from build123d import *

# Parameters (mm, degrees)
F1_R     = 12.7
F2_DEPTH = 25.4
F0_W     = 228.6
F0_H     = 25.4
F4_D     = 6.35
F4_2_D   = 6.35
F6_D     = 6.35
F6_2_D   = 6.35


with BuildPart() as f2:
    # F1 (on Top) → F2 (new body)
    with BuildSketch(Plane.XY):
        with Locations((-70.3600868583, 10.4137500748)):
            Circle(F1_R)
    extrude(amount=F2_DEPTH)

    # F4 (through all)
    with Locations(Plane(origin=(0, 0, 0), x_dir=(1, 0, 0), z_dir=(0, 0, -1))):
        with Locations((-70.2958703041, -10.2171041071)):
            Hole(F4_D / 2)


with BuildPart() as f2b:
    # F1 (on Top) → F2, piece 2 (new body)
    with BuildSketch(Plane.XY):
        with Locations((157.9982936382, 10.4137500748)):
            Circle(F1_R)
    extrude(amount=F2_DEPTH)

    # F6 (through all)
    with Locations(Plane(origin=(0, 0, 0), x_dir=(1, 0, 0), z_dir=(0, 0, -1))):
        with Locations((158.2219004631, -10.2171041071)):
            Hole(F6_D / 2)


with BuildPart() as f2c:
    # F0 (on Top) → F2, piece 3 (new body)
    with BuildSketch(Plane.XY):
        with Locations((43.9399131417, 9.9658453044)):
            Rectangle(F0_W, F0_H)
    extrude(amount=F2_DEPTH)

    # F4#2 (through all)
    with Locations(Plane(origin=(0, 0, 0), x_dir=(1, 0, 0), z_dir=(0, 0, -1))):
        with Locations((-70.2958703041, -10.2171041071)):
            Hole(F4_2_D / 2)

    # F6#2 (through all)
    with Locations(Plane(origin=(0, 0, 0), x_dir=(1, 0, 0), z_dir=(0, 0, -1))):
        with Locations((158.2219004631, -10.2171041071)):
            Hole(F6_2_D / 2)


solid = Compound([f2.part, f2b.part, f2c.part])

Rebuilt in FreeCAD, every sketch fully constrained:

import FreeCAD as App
import Part
import Sketcher

V = App.Vector
Q = App.Units.Quantity

doc = App.newDocument("Part")
params = doc.addObject("Spreadsheet::Sheet", "Params")
for row, (alias, value) in enumerate([
    ("sketch1_diameter", "1 in"),
    ("pad1_length", "1 in"),
    ("sketch2_diameter", "0.25 in"),
    ("hole_diameter", "0.25 in"),
    ("sketch3_diameter", "1 in"),
    ("pad2_length", "1 in"),
    ("sketch4_diameter", "0.25 in"),
    ("hole2_diameter", "0.25 in"),
    ("sketch5_width", "9 in"),
    ("sketch5_height", "1 in"),
    ("pad3_length", "1 in"),
    ("sketch6_diameter", "0.25 in"),
    ("hole3_diameter", "0.25 in"),
    ("sketch7_diameter", "0.25 in"),
    ("hole4_diameter", "0.25 in"),
], start=1):
    params.set(f"A{row}", alias)
    params.set(f"B{row}", "=" + value)
    params.setAlias(f"B{row}", alias)

body = doc.addObject("PartDesign::Body", "Body")

sketch1 = doc.addObject("Sketcher::SketchObject", "Sketch")
body.addObject(sketch1)
sketch1.AttachmentSupport = (doc.XY_Plane, [""])
sketch1.MapMode = "FlatFace"
sketch1.addGeometry(Part.Circle(V(-70.360087, 10.41375, 0), V(0, 0, 1), 12.7), False)
sketch1.addConstraint([
    Sketcher.Constraint("Diameter", 0, Q("1 in")),
    Sketcher.Constraint("DistanceY", -1, 1, 0, 3, 10.41375),
    Sketcher.Constraint("DistanceX", 0, 3, -1, 1, 70.360087),
])
sketch1.setExpression("Constraints[0]", "Params.sketch1_diameter")
pad1 = doc.addObject("PartDesign::Pad", "Pad")
body.addObject(pad1)
pad1.Profile = sketch1
pad1.setExpression("Length", "Params.pad1_length")

sketch2 = doc.addObject("Sketcher::SketchObject", "Sketch001")
body.addObject(sketch2)
sketch2.AttachmentSupport = (doc.XY_Plane, [""])
sketch2.MapMode = "FlatFace"
sketch2.addGeometry(Part.Circle(V(-70.29587, 10.217104, 0), V(0, 0, 1), 3.175), False)
sketch2.addConstraint([
    Sketcher.Constraint("Diameter", 0, Q("0.25 in")),
    Sketcher.Constraint("DistanceX", 0, 3, -1, 1, 70.29587),
    Sketcher.Constraint("DistanceY", -1, 1, 0, 3, 10.217104),
])
sketch2.setExpression("Constraints[0]", "Params.sketch2_diameter")
doc.recompute()
hole = doc.addObject("PartDesign::Hole", "Hole")
body.addObject(hole)
hole.Profile = sketch2
hole.ThreadType = "None"
hole.setExpression("Diameter", "Params.hole_diameter")
hole.DepthType = "ThroughAll"
hole.Reversed = True
body2 = doc.addObject("PartDesign::Body", "Body001")

sketch3 = doc.addObject("Sketcher::SketchObject", "Sketch002")
body2.addObject(sketch3)
sketch3.AttachmentSupport = (doc.getObject("XY_Plane001"), [""])
sketch3.MapMode = "FlatFace"
sketch3.addGeometry(Part.Circle(V(157.998294, 10.41375, 0), V(0, 0, 1), 12.7), False)
sketch3.addConstraint([
    Sketcher.Constraint("Diameter", 0, Q("1 in")),
    Sketcher.Constraint("DistanceY", -1, 1, 0, 3, 10.41375),
    Sketcher.Constraint("DistanceX", -1, 1, 0, 3, 157.998294),
])
sketch3.setExpression("Constraints[0]", "Params.sketch3_diameter")
pad2 = doc.addObject("PartDesign::Pad", "Pad001")
body2.addObject(pad2)
pad2.Profile = sketch3
pad2.setExpression("Length", "Params.pad2_length")

sketch4 = doc.addObject("Sketcher::SketchObject", "Sketch003")
body2.addObject(sketch4)
sketch4.AttachmentSupport = (doc.getObject("XY_Plane001"), [""])
sketch4.MapMode = "FlatFace"
sketch4.addGeometry(Part.Circle(V(158.2219, 10.217104, 0), V(0, 0, 1), 3.175), False)
sketch4.addConstraint([
    Sketcher.Constraint("Diameter", 0, Q("0.25 in")),
    Sketcher.Constraint("DistanceX", -1, 1, 0, 3, 158.2219),
    Sketcher.Constraint("DistanceY", -1, 1, 0, 3, 10.217104),
])
sketch4.setExpression("Constraints[0]", "Params.sketch4_diameter")
doc.recompute()
hole2 = doc.addObject("PartDesign::Hole", "Hole001")
body2.addObject(hole2)
hole2.Profile = sketch4
hole2.ThreadType = "None"
hole2.setExpression("Diameter", "Params.hole2_diameter")
hole2.DepthType = "ThroughAll"
hole2.Reversed = True
body3 = doc.addObject("PartDesign::Body", "Body002")

sketch5 = doc.addObject("Sketcher::SketchObject", "Sketch004")
body3.addObject(sketch5)
sketch5.AttachmentSupport = (doc.getObject("XY_Plane002"), [""])
sketch5.MapMode = "FlatFace"
sketch5.addGeometry([
    Part.LineSegment(V(-70.360087, 22.665845, 0), V(-70.360087, -2.734155, 0)),
    Part.LineSegment(V(-70.360087, -2.734155, 0), V(158.239913, -2.734155, 0)),
    Part.LineSegment(V(158.239913, -2.734155, 0), V(158.239913, 22.665845, 0)),
    Part.LineSegment(V(158.239913, 22.665845, 0), V(-70.360087, 22.665845, 0)),
], False)
sketch5.addConstraint([
    Sketcher.Constraint("Coincident", 0, 2, 1, 1),
    Sketcher.Constraint("Coincident", 1, 2, 2, 1),
    Sketcher.Constraint("Coincident", 2, 2, 3, 1),
    Sketcher.Constraint("Coincident", 3, 2, 0, 1),
    Sketcher.Constraint("Vertical", 0),
    Sketcher.Constraint("Horizontal", 1),
    Sketcher.Constraint("Vertical", 2),
    Sketcher.Constraint("Horizontal", 3),
    Sketcher.Constraint("DistanceX", 1, 1, 1, 2, Q("9 in")),
    Sketcher.Constraint("DistanceY", 0, 2, 0, 1, Q("1 in")),
    Sketcher.Constraint("DistanceX", 0, 2, -1, 1, 70.360087),
    Sketcher.Constraint("DistanceY", 0, 2, -1, 1, 2.734155),
])
sketch5.setExpression("Constraints[8]", "Params.sketch5_width")
sketch5.setExpression("Constraints[9]", "Params.sketch5_height")
pad3 = doc.addObject("PartDesign::Pad", "Pad002")
body3.addObject(pad3)
pad3.Profile = sketch5
pad3.setExpression("Length", "Params.pad3_length")

sketch6 = doc.addObject("Sketcher::SketchObject", "Sketch005")
body3.addObject(sketch6)
sketch6.AttachmentSupport = (doc.getObject("XY_Plane002"), [""])
sketch6.MapMode = "FlatFace"
sketch6.addGeometry(Part.Circle(V(-70.29587, 10.217104, 0), V(0, 0, 1), 3.175), False)
sketch6.addConstraint([
    Sketcher.Constraint("Diameter", 0, Q("0.25 in")),
    Sketcher.Constraint("DistanceX", 0, 3, -1, 1, 70.29587),
    Sketcher.Constraint("DistanceY", -1, 1, 0, 3, 10.217104),
])
sketch6.setExpression("Constraints[0]", "Params.sketch6_diameter")
doc.recompute()
hole3 = doc.addObject("PartDesign::Hole", "Hole002")
body3.addObject(hole3)
hole3.Profile = sketch6
hole3.ThreadType = "None"
hole3.setExpression("Diameter", "Params.hole3_diameter")
hole3.DepthType = "ThroughAll"
hole3.Reversed = True

sketch7 = doc.addObject("Sketcher::SketchObject", "Sketch006")
body3.addObject(sketch7)
sketch7.AttachmentSupport = (doc.getObject("XY_Plane002"), [""])
sketch7.MapMode = "FlatFace"
sketch7.addGeometry(Part.Circle(V(158.2219, 10.217104, 0), V(0, 0, 1), 3.175), False)
sketch7.addConstraint([
    Sketcher.Constraint("Diameter", 0, Q("0.25 in")),
    Sketcher.Constraint("DistanceX", -1, 1, 0, 3, 158.2219),
    Sketcher.Constraint("DistanceY", -1, 1, 0, 3, 10.217104),
])
sketch7.setExpression("Constraints[0]", "Params.sketch7_diameter")
doc.recompute()
hole4 = doc.addObject("PartDesign::Hole", "Hole003")
body3.addObject(hole4)
hole4.Profile = sketch7
hole4.ThreadType = "None"
hole4.setExpression("Diameter", "Params.hole4_diameter")
hole4.DepthType = "ThroughAll"
hole4.Reversed = True

doc.recompute()
